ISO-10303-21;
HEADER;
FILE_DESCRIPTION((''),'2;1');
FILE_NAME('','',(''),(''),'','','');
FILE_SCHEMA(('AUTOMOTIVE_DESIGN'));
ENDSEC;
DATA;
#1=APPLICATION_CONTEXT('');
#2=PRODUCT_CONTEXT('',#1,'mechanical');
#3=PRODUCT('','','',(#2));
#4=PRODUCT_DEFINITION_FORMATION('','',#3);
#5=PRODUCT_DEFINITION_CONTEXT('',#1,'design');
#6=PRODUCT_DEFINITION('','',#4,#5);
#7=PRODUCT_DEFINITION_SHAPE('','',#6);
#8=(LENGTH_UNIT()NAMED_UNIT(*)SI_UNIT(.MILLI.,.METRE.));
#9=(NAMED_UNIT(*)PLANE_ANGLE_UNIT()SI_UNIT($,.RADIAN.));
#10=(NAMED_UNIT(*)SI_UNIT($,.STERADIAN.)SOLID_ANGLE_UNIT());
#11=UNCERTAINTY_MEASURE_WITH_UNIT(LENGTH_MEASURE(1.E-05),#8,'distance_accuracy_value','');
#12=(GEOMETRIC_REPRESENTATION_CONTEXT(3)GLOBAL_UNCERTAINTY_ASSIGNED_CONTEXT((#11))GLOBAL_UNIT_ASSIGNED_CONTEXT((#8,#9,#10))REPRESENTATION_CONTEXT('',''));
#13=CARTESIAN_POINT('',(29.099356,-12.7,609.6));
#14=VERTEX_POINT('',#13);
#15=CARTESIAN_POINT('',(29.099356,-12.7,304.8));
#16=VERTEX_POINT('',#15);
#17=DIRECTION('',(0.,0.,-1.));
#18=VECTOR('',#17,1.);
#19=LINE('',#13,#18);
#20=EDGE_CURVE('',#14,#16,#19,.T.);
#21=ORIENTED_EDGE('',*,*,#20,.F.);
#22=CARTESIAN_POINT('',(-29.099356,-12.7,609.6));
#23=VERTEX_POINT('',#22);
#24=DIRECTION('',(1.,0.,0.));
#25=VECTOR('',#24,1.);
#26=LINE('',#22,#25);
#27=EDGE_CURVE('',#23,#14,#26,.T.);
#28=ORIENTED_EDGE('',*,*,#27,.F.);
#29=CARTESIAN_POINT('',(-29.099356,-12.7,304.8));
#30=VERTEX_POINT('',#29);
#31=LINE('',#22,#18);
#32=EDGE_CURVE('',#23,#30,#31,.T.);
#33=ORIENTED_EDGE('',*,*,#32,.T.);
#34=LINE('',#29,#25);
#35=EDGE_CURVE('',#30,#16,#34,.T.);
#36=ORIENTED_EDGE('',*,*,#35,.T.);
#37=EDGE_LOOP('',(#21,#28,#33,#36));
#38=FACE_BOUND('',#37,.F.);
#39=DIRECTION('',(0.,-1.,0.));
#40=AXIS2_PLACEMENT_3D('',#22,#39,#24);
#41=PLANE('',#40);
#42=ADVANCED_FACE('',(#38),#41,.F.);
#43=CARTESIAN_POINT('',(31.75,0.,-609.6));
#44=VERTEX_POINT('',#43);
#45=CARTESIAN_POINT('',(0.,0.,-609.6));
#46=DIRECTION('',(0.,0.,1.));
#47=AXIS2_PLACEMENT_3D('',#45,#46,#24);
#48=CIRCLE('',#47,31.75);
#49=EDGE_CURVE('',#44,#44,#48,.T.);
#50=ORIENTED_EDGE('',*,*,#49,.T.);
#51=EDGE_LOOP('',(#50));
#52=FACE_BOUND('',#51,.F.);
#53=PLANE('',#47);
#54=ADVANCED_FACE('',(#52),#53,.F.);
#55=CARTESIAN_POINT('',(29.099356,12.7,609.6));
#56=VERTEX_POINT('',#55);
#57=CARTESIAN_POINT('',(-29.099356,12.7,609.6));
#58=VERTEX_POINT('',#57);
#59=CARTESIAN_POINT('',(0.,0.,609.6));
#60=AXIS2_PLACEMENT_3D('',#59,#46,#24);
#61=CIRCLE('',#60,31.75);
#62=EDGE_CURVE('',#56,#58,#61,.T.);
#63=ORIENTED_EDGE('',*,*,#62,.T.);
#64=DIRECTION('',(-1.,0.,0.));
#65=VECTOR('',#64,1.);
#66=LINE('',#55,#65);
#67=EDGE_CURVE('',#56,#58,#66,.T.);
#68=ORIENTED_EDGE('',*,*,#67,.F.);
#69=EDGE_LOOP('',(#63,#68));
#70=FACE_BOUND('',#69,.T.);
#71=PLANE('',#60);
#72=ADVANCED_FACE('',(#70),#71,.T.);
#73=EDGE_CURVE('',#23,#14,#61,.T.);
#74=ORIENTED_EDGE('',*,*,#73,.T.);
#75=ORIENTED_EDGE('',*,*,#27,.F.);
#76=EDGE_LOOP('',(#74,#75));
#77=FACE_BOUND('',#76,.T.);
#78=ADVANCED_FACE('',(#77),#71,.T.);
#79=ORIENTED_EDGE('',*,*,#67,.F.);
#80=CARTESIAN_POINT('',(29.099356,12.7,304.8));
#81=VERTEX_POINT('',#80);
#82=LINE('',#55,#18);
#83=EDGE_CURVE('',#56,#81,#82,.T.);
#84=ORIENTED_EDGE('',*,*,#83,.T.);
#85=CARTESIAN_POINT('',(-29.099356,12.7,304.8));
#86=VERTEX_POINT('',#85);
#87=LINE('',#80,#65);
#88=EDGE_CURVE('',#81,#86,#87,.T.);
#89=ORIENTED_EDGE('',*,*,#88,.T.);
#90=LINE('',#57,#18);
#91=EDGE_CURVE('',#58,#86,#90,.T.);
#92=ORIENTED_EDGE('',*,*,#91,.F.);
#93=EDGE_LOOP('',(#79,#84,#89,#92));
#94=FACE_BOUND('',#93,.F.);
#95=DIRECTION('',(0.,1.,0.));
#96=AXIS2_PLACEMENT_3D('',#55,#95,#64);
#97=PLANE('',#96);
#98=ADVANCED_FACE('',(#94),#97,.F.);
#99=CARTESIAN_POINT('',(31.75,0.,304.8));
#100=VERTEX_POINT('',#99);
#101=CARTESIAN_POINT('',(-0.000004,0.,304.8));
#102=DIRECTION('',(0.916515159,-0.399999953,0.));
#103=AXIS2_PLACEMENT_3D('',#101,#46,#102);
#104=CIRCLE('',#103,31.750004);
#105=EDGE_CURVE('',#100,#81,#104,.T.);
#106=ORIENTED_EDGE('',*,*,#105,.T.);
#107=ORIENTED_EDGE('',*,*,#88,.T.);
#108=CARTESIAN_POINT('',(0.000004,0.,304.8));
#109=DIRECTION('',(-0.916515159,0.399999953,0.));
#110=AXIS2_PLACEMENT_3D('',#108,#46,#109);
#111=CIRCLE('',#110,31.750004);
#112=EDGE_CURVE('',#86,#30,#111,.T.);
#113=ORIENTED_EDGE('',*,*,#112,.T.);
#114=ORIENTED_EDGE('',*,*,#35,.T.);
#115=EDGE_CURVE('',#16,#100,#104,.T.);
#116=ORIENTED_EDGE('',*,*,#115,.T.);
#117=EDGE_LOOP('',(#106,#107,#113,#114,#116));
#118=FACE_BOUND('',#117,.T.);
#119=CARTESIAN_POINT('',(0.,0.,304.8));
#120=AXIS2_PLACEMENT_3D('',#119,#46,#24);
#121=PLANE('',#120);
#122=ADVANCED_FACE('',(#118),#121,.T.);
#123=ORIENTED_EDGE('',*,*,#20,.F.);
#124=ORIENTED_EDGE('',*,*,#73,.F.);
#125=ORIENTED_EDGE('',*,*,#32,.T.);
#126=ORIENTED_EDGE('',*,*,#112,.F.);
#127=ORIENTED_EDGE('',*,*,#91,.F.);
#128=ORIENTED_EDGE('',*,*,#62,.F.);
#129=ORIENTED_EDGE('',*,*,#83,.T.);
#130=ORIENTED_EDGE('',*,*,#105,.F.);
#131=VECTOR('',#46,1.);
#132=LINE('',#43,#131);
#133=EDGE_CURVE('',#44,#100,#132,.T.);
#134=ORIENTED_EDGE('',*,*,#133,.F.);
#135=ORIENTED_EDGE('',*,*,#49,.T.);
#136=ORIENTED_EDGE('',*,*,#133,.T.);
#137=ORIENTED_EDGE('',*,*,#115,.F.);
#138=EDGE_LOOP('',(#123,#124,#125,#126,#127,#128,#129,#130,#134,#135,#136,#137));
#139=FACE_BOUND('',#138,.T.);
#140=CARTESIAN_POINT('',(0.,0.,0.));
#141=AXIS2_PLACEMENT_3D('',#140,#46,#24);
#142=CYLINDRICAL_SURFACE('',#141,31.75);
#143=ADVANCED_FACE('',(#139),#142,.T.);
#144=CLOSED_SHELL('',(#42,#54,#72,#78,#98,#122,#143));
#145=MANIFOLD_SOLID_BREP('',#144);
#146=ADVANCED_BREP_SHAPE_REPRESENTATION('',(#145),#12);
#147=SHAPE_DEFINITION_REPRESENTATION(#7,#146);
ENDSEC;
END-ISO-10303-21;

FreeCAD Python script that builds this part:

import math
import FreeCAD as App
import Part
import Sketcher
Q = App.Units.Quantity

doc = App.newDocument("Part")
body = doc.addObject("PartDesign::Body", "Body")

# Sketch on XY plane
sketch1 = doc.addObject("Sketcher::SketchObject", "Sketch")
body.addObject(sketch1)
sketch1.AttachmentSupport = (doc.XY_Plane, [""])
sketch1.MapMode = "FlatFace"
sketch1.addGeometry(Part.Circle(App.Vector(0, 0, 0), App.Vector(0, 0, 1), 31.75), False)
sketch1.addConstraint([
    Sketcher.Constraint("Coincident", 0, 3, -1, 1),
    Sketcher.Constraint("Diameter", 0, Q("2.5 in")),
])
pad1 = doc.addObject("PartDesign::Pad", "Pad")
body.addObject(pad1)
pad1.Profile = sketch1
pad1.Length = Q("48 in")
pad1.Midplane = True

# Sketch on XY plane
sketch2 = doc.addObject("Sketcher::SketchObject", "Sketch001")
body.addObject(sketch2)
sketch2.AttachmentSupport = (doc.XY_Plane, [""])
sketch2.MapMode = "FlatFace"
sketch2.AttachmentOffset = App.Placement(App.Vector(0, 0, 24 * 25.4), App.Rotation())
sketch2.addGeometry([
    Part.LineSegment(App.Vector(29.099356, 12.7, 0), App.Vector(-29.099356, 12.7, 0)),
    Part.ArcOfCircle(Part.Circle(App.Vector(0.000004, 0, 0), App.Vector(0, 0, 1), 31.750004), math.radians(156.421824), math.radians(203.578176)),
    Part.LineSegment(App.Vector(-29.099356, -12.7, 0), App.Vector(29.099356, -12.7, 0)),
    Part.ArcOfCircle(Part.Circle(App.Vector(-0.000004, 0, 0), App.Vector(0, 0, 1), 31.750004), math.radians(-23.578176), math.radians(23.578176)),
], False)
sketch2.addConstraint([
    Sketcher.Constraint("Coincident", 0, 2, 1, 1),
    Sketcher.Constraint("Coincident", 1, 2, 2, 1),
    Sketcher.Constraint("Coincident", 2, 2, 3, 1),
    Sketcher.Constraint("Coincident", 3, 2, 0, 1),
    Sketcher.Constraint("Horizontal", 0),
    Sketcher.Constraint("Horizontal", 2),
    Sketcher.Constraint("Coincident", 1, 3, -1, 1),
    Sketcher.Constraint("Coincident", 3, 3, -1, 1),
    Sketcher.Constraint("Equal", 1, 3),
    Sketcher.Constraint("Vertical", 0, 2, 1, 2),
    Sketcher.Constraint("Radius", 1, Q("1.2500001 in")),
    Sketcher.Constraint("DistanceY", 1, 2, 0, 2, Q("1 in")),
])
pocket1 = doc.addObject("PartDesign::Pocket", "Pocket")
body.addObject(pocket1)
pocket1.Profile = sketch2
pocket1.Length = Q("12 in")

doc.recompute()
